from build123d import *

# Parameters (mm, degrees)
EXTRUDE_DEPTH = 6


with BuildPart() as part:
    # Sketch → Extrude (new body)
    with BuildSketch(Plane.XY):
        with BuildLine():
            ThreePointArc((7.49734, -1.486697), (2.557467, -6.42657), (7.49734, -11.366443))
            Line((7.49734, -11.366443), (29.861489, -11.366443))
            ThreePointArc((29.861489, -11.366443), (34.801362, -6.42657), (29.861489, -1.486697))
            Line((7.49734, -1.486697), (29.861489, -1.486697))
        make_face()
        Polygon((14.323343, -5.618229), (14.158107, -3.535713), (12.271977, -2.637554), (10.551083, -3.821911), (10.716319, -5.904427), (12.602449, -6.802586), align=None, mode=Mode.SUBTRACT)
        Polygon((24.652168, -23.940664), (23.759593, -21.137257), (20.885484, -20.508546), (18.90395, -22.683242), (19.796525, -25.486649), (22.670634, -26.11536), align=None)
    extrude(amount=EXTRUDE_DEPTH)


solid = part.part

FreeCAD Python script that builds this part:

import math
import FreeCAD as App
import Part
import Sketcher


def add_polygon(sketch, points):
    """Adds a closed chain of lines whose ends are joined by coincident constraints."""
    first, n = sketch.GeometryCount, len(points)
    for a, b in zip(points, points[1:] + points[:1]):
        sketch.addGeometry(Part.LineSegment(App.Vector(*a, 0), App.Vector(*b, 0)), False)
    for i in range(n):
        sketch.addConstraint(Sketcher.Constraint("Coincident", first + i, 2, first + (i + 1) % n, 1))

doc = App.newDocument("Part")
body = doc.addObject("PartDesign::Body", "Body")
body.AllowCompound = True

# Sketch on XY plane
sketch1 = body.newObject("Sketcher::SketchObject", "Sketch")
sketch1.AttachmentSupport = (doc.getObject("XY_Plane"), [""])
sketch1.MapMode = "FlatFace"
sketch1.addGeometry(Part.ArcOfCircle(Part.Circle(App.Vector(7.5, -6.4, 0), App.Vector(0, 0, 1), 4.9), math.radians(90), math.radians(270)), False)  # 0
sketch1.addGeometry(Part.LineSegment(App.Vector(7.5, -11.4, 0), App.Vector(29.9, -11.4, 0)), False)  # 1
sketch1.addGeometry(Part.ArcOfCircle(Part.Circle(App.Vector(29.9, -6.4, 0), App.Vector(0, 0, 1), 4.9), math.radians(-90), math.radians(90)), False)  # 2
sketch1.addGeometry(Part.LineSegment(App.Vector(29.9, -1.5, 0), App.Vector(7.5, -1.5, 0)), False)  # 3
add_polygon(sketch1, [(14.2, -3.5), (14.3, -5.6), (12.6, -6.8), (10.7, -5.9), (10.6, -3.8), (12.3, -2.6)])  # lines 4-9
add_polygon(sketch1, [(24.7, -23.9), (23.8, -21.1), (20.9, -20.5), (18.9, -22.7), (19.8, -25.5), (22.7, -26.1)])  # lines 10-15
sketch1.addConstraint(Sketcher.Constraint("Tangent", 0, 2, 1, 1))
sketch1.addConstraint(Sketcher.Constraint("Tangent", 1, 2, 2, 1))
sketch1.addConstraint(Sketcher.Constraint("Tangent", 2, 2, 3, 1))
sketch1.addConstraint(Sketcher.Constraint("Tangent", 3, 2, 0, 1))
sketch1.addConstraint(Sketcher.Constraint("Horizontal", 1))
sketch1.addConstraint(Sketcher.Constraint("Horizontal", 3))
sketch1.addConstraint(Sketcher.Constraint("Parallel", 4, 7))
sketch1.addConstraint(Sketcher.Constraint("Parallel", 5, 8))
sketch1.addConstraint(Sketcher.Constraint("Parallel", 6, 9))
sketch1.addConstraint(Sketcher.Constraint("Parallel", 10, 13))
sketch1.addConstraint(Sketcher.Constraint("Parallel", 11, 14))
sketch1.addConstraint(Sketcher.Constraint("Parallel", 12, 15))
sketch1.addConstraint(Sketcher.Constraint("Equal", 4, 5))
sketch1.addConstraint(Sketcher.Constraint("Equal", 5, 6))
sketch1.addConstraint(Sketcher.Constraint("Equal", 6, 7))
sketch1.addConstraint(Sketcher.Constraint("Equal", 10, 11))
sketch1.addConstraint(Sketcher.Constraint("Equal", 11, 12))
sketch1.addConstraint(Sketcher.Constraint("Equal", 12, 13))
sketch1.addConstraint(Sketcher.Constraint("Radius", 0, 4.939873))
sketch1.addConstraint(Sketcher.Constraint("DistanceX", 1, 1, 1, 2, 22.364149))
sketch1.addConstraint(Sketcher.Constraint("DistanceY", 7, 2, 9, 2, 0.286198))
sketch1.addConstraint(Sketcher.Constraint("DistanceY", 12, 2, 1, 2, 11.316799))
sketch1.addConstraint(Sketcher.Constraint("DistanceX", 5, 2, 12, 2, 6.301501))
sketch1.addConstraint(Sketcher.Constraint("Distance", 4, 2.089061))
sketch1.addConstraint(Sketcher.Constraint("Distance", 10, 2.942071))
sketch1.addConstraint(Sketcher.Constraint("DistanceX", -1, 1, 0, 3, 7.49734))
sketch1.addConstraint(Sketcher.Constraint("DistanceY", 0, 3, -1, 1, 6.42657))
sketch1.addConstraint(Sketcher.Constraint("DistanceY", 4, 2, -1, 1, 5.618229))
sketch1.addConstraint(Sketcher.Constraint("DistanceX", -1, 1, 5, 2, 12.602449))
sketch1.addConstraint(Sketcher.Constraint("DistanceX", -1, 1, 6, 2, 10.716319))
sketch1.addConstraint(Sketcher.Constraint("DistanceY", 7, 2, -1, 1, 3.821911))
sketch1.addConstraint(Sketcher.Constraint("DistanceY", 13, 2, -1, 1, 25.486649))
sketch1.addConstraint(Sketcher.Constraint("DistanceY", 14, 2, -1, 1, 26.11536))
sketch1.addConstraint(Sketcher.Constraint("DistanceX", 4, 2, 10, 2, 9.43625))
pad1 = body.newObject("PartDesign::Pad", "Pad")
pad1.Profile = sketch1
pad1.Length = 6

doc.recompute()
